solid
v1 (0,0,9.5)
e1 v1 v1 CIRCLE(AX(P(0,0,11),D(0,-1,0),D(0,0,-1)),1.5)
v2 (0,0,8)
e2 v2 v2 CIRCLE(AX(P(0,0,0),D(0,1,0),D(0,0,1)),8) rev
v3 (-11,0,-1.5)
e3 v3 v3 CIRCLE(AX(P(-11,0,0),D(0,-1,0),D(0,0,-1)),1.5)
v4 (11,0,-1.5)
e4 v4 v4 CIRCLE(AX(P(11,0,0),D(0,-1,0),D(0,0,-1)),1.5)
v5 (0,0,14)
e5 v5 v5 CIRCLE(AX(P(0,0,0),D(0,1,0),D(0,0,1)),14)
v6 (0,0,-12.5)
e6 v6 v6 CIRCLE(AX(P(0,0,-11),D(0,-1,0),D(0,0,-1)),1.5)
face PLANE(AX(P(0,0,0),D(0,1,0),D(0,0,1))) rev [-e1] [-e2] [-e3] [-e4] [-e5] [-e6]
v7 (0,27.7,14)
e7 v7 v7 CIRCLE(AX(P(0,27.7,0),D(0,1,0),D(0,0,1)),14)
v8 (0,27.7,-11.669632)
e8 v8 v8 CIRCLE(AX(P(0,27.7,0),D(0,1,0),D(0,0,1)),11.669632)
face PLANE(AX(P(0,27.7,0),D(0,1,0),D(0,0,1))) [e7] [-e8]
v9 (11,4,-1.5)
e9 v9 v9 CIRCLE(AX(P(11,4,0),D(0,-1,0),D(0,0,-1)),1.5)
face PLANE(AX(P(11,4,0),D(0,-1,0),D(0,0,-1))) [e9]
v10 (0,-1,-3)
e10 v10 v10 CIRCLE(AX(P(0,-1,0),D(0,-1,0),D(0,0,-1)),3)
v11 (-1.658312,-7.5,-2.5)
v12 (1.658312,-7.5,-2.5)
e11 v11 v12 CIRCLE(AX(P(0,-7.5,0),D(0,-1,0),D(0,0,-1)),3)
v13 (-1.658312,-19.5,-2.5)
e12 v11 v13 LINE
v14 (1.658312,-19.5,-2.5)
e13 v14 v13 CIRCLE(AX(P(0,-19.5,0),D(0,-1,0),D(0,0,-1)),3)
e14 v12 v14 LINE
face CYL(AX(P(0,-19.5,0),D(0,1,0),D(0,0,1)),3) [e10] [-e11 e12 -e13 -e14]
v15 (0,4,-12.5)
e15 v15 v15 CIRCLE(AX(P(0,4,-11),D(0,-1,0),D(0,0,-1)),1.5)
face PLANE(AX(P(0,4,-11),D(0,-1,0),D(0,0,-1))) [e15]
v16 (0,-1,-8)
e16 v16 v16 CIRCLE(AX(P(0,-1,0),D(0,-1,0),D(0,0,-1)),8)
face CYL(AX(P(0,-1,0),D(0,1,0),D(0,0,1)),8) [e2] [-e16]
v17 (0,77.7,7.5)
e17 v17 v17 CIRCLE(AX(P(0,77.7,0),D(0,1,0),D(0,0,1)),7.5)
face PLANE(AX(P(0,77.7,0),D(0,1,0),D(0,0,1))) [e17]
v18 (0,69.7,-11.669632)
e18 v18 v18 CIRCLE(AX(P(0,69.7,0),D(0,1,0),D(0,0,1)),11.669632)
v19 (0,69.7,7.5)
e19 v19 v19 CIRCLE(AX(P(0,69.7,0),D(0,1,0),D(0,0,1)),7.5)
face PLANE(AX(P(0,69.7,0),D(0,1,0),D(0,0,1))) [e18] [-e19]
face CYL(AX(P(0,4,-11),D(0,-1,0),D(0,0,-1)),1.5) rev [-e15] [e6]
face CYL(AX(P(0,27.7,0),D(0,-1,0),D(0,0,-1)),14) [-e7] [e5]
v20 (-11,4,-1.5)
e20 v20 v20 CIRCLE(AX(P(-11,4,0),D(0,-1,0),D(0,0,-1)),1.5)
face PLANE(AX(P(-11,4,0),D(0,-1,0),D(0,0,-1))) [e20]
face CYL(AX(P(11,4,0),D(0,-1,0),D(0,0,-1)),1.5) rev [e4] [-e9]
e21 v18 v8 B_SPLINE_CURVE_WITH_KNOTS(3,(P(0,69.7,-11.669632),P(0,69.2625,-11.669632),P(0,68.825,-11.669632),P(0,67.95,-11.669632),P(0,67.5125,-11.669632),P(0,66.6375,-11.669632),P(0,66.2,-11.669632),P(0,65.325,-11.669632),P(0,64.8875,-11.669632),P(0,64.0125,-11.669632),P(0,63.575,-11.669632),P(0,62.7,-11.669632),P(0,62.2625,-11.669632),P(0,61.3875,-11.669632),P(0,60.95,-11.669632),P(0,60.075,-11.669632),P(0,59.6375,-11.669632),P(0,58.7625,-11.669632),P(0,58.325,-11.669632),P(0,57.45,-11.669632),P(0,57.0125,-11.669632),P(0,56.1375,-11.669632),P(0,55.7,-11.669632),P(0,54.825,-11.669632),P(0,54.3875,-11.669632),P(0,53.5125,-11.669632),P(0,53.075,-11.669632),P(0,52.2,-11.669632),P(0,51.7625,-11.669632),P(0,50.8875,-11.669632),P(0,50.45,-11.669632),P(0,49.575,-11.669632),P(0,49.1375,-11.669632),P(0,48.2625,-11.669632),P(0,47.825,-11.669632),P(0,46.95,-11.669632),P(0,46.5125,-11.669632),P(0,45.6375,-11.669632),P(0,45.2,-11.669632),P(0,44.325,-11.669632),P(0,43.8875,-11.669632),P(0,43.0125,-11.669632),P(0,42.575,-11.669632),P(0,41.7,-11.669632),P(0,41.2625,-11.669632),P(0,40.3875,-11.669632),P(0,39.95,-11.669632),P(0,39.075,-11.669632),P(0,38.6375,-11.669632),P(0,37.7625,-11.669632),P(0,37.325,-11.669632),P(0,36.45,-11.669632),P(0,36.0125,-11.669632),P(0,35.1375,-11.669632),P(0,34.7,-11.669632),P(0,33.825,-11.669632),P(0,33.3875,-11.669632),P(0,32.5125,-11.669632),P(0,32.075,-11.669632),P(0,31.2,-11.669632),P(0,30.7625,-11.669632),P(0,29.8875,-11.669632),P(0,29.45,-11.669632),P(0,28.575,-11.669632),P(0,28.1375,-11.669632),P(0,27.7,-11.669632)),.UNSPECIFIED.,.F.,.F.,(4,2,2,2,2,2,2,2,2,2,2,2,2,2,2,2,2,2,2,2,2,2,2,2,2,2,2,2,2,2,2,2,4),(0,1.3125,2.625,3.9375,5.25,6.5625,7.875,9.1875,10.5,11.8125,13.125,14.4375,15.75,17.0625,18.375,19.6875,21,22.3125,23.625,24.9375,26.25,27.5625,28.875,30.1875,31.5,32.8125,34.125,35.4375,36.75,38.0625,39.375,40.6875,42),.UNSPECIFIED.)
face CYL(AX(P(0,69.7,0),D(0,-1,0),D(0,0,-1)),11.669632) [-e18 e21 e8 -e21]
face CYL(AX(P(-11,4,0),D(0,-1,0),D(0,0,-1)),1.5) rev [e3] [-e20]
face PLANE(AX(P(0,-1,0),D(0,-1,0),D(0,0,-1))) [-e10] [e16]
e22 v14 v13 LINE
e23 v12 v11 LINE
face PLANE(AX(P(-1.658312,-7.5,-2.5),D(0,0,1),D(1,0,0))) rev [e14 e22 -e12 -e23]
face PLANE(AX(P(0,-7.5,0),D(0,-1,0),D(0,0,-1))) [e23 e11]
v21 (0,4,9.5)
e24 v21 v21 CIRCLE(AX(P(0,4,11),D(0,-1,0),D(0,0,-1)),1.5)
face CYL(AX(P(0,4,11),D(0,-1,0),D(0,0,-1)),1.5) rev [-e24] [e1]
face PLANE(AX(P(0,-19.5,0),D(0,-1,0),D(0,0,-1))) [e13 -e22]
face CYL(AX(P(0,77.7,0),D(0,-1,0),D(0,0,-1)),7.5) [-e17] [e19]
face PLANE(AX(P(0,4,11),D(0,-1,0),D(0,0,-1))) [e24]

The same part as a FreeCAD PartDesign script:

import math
import FreeCAD as App
import Part
import Sketcher
from FreeCAD import Vector
Q = App.Units.Quantity

doc = App.newDocument("Part")
params = doc.addObject("Spreadsheet::Sheet", "Params")
for row, (alias, value) in enumerate([
    ("sketch1_diameter", "28 mm"),
    ("pad1_length", "27.7 mm"),
    ("pad2_length", "42 mm"),
    ("sketch3_diameter", "15 mm"),
    ("pad3_length", "8 mm"),
    ("sketch4_diameter", "16 mm"),
    ("pad4_length", "1 mm"),
    ("sketch5_diameter", "6 mm"),
    ("pad5_length", "18.5 mm"),
    ("sketch6_radius", "3 mm"),
    ("pocket1_length", "12 mm"),
    ("sketch7_diameter", "3 mm"),
    ("pocket2_length", "4 mm"),
], start=1):
    params.set(f"A{row}", alias)
    params.set(f"B{row}", "=" + value)
    params.setAlias(f"B{row}", alias)

body = doc.addObject("PartDesign::Body", "Body")

# Sketch on XZ plane
sketch1 = body.newObject("Sketcher::SketchObject", "Sketch")
sketch1.AttachmentSupport = (doc.getObject("XZ_Plane"), [""])
sketch1.MapMode = "FlatFace"
sketch1.addGeometry(Part.Circle(Vector(0, 0, 0), Vector(0, 0, 1), 14), False)
sketch1.addConstraint(Sketcher.Constraint("Coincident", 0, 3, -1, 1))
sketch1.addConstraint(Sketcher.Constraint("Diameter", 0, Q("28 mm")))
sketch1.setExpression("Constraints[1]", "Params.sketch1_diameter")
pad1 = body.newObject("PartDesign::Pad", "Pad")
pad1.Profile = sketch1
pad1.setExpression("Length", "Params.pad1_length")
pad1.Reversed = True

# Sketch on XZ plane
sketch2 = body.newObject("Sketcher::SketchObject", "Sketch001")
sketch2.AttachmentSupport = (doc.getObject("XZ_Plane"), [""])
sketch2.MapMode = "FlatFace"
sketch2.AttachmentOffset = App.Placement(Vector(0, 0, -27.7), App.Rotation())
sketch2.addGeometry(Part.Circle(Vector(0, 0, 0), Vector(0, 0, 1), 12), False)
sketch2.addConstraint(Sketcher.Constraint("Coincident", 0, 3, -1, 1))
sketch2.addConstraint(Sketcher.Constraint("Diameter", 0, Q("23.339264 mm")))
pad2 = body.newObject("PartDesign::Pad", "Pad001")
pad2.Profile = sketch2
pad2.setExpression("Length", "Params.pad2_length")
pad2.Reversed = True

# Sketch on XZ plane
sketch3 = body.newObject("Sketcher::SketchObject", "Sketch002")
sketch3.AttachmentSupport = (doc.getObject("XZ_Plane"), [""])
sketch3.MapMode = "FlatFace"
sketch3.AttachmentOffset = App.Placement(Vector(0, 0, -69.7), App.Rotation())
sketch3.addGeometry(Part.Circle(Vector(0, 0, 0), Vector(0, 0, 1), 8), False)
sketch3.addConstraint(Sketcher.Constraint("Coincident", 0, 3, -1, 1))
sketch3.addConstraint(Sketcher.Constraint("Diameter", 0, Q("15 mm")))
sketch3.setExpression("Constraints[1]", "Params.sketch3_diameter")
pad3 = body.newObject("PartDesign::Pad", "Pad002")
pad3.Profile = sketch3
pad3.setExpression("Length", "Params.pad3_length")
pad3.Reversed = True

# Sketch on XZ plane
sketch4 = body.newObject("Sketcher::SketchObject", "Sketch003")
sketch4.AttachmentSupport = (doc.getObject("XZ_Plane"), [""])
sketch4.MapMode = "FlatFace"
sketch4.addGeometry(Part.Circle(Vector(0, 0, 0), Vector(0, 0, 1), 8), False)
sketch4.addConstraint(Sketcher.Constraint("Coincident", 0, 3, -1, 1))
sketch4.addConstraint(Sketcher.Constraint("Diameter", 0, Q("16 mm")))
sketch4.setExpression("Constraints[1]", "Params.sketch4_diameter")
pad4 = body.newObject("PartDesign::Pad", "Pad003")
pad4.Profile = sketch4
pad4.setExpression("Length", "Params.pad4_length")

# Sketch on XZ plane
sketch5 = body.newObject("Sketcher::SketchObject", "Sketch004")
sketch5.AttachmentSupport = (doc.getObject("XZ_Plane"), [""])
sketch5.MapMode = "FlatFace"
sketch5.AttachmentOffset = App.Placement(Vector(0, 0, 1), App.Rotation())
sketch5.addGeometry(Part.Circle(Vector(0, 0, 0), Vector(0, 0, 1), 3), False)
sketch5.addConstraint(Sketcher.Constraint("Coincident", 0, 3, -1, 1))
sketch5.addConstraint(Sketcher.Constraint("Diameter", 0, Q("6 mm")))
sketch5.setExpression("Constraints[1]", "Params.sketch5_diameter")
pad5 = body.newObject("PartDesign::Pad", "Pad004")
pad5.Profile = sketch5
pad5.setExpression("Length", "Params.pad5_length")

# Sketch on XZ plane
sketch6 = body.newObject("Sketcher::SketchObject", "Sketch005")
sketch6.AttachmentSupport = (doc.getObject("XZ_Plane"), [""])
sketch6.MapMode = "FlatFace"
sketch6.AttachmentOffset = App.Placement(Vector(0, 0, 7.5), App.Rotation())
sketch6.addGeometry(Part.LineSegment(Vector(1.7, -2.5, 0), Vector(-1.7, -2.5, 0)), False)
sketch6.addGeometry(Part.ArcOfCircle(Part.Circle(Vector(0, 0, 0), Vector(0, 0, 1), 3), math.radians(-124), math.radians(-56)), False)
sketch6.addConstraint(Sketcher.Constraint("Coincident", 0, 1, 1, 2))
sketch6.addConstraint(Sketcher.Constraint("Coincident", 1, 1, 0, 2))
sketch6.addConstraint(Sketcher.Constraint("Horizontal", 0))
sketch6.addConstraint(Sketcher.Constraint("Coincident", 1, 3, -1, 1))
sketch6.addConstraint(Sketcher.Constraint("Radius", 1, Q("3 mm")))
sketch6.addConstraint(Sketcher.Constraint("DistanceY", 0, 1, -1, 1, Q("2.5 mm")))
sketch6.setExpression("Constraints[4]", "Params.sketch6_radius")
pocket1 = body.newObject("PartDesign::Pocket", "Pocket")
pocket1.Profile = sketch6
pocket1.setExpression("Length", "Params.pocket1_length")
pocket1.Reversed = True

# Sketch on XZ plane
sketch7 = body.newObject("Sketcher::SketchObject", "Sketch006")
sketch7.AttachmentSupport = (doc.getObject("XZ_Plane"), [""])
sketch7.MapMode = "FlatFace"
sketch7.addGeometry(Part.Circle(Vector(0, 11, 0), Vector(0, 0, 1), 1.5), False)
sketch7.addGeometry(Part.Circle(Vector(11, 0, 0), Vector(0, 0, 1), 1.5), False)
sketch7.addGeometry(Part.Circle(Vector(0, -11, 0), Vector(0, 0, 1), 1.5), False)
sketch7.addGeometry(Part.Circle(Vector(-11, 0, 0), Vector(0, 0, 1), 1.5), False)
sketch7.addConstraint(Sketcher.Constraint("Equal", 0, 1))
sketch7.addConstraint(Sketcher.Constraint("Equal", 1, 2))
sketch7.addConstraint(Sketcher.Constraint("Equal", 2, 3))
sketch7.addConstraint(Sketcher.Constraint("Symmetric", 0, 3, 2, 3, -1, 1))
sketch7.addConstraint(Sketcher.Constraint("Symmetric", 1, 3, 3, 3, -1, 1))
sketch7.addConstraint(Sketcher.Constraint("PointOnObject", 0, 3, -2))
sketch7.addConstraint(Sketcher.Constraint("PointOnObject", 1, 3, -1))
sketch7.addConstraint(Sketcher.Constraint("Diameter", 0, Q("3 mm")))
sketch7.addConstraint(Sketcher.Constraint("DistanceY", -1, 1, 0, 3, Q("11 mm")))
sketch7.addConstraint(Sketcher.Constraint("DistanceX", -1, 1, 1, 3, Q("11 mm")))
sketch7.setExpression("Constraints[7]", "Params.sketch7_diameter")
pocket2 = body.newObject("PartDesign::Pocket", "Pocket001")
pocket2.Profile = sketch7
pocket2.setExpression("Length", "Params.pocket2_length")

doc.recompute()
